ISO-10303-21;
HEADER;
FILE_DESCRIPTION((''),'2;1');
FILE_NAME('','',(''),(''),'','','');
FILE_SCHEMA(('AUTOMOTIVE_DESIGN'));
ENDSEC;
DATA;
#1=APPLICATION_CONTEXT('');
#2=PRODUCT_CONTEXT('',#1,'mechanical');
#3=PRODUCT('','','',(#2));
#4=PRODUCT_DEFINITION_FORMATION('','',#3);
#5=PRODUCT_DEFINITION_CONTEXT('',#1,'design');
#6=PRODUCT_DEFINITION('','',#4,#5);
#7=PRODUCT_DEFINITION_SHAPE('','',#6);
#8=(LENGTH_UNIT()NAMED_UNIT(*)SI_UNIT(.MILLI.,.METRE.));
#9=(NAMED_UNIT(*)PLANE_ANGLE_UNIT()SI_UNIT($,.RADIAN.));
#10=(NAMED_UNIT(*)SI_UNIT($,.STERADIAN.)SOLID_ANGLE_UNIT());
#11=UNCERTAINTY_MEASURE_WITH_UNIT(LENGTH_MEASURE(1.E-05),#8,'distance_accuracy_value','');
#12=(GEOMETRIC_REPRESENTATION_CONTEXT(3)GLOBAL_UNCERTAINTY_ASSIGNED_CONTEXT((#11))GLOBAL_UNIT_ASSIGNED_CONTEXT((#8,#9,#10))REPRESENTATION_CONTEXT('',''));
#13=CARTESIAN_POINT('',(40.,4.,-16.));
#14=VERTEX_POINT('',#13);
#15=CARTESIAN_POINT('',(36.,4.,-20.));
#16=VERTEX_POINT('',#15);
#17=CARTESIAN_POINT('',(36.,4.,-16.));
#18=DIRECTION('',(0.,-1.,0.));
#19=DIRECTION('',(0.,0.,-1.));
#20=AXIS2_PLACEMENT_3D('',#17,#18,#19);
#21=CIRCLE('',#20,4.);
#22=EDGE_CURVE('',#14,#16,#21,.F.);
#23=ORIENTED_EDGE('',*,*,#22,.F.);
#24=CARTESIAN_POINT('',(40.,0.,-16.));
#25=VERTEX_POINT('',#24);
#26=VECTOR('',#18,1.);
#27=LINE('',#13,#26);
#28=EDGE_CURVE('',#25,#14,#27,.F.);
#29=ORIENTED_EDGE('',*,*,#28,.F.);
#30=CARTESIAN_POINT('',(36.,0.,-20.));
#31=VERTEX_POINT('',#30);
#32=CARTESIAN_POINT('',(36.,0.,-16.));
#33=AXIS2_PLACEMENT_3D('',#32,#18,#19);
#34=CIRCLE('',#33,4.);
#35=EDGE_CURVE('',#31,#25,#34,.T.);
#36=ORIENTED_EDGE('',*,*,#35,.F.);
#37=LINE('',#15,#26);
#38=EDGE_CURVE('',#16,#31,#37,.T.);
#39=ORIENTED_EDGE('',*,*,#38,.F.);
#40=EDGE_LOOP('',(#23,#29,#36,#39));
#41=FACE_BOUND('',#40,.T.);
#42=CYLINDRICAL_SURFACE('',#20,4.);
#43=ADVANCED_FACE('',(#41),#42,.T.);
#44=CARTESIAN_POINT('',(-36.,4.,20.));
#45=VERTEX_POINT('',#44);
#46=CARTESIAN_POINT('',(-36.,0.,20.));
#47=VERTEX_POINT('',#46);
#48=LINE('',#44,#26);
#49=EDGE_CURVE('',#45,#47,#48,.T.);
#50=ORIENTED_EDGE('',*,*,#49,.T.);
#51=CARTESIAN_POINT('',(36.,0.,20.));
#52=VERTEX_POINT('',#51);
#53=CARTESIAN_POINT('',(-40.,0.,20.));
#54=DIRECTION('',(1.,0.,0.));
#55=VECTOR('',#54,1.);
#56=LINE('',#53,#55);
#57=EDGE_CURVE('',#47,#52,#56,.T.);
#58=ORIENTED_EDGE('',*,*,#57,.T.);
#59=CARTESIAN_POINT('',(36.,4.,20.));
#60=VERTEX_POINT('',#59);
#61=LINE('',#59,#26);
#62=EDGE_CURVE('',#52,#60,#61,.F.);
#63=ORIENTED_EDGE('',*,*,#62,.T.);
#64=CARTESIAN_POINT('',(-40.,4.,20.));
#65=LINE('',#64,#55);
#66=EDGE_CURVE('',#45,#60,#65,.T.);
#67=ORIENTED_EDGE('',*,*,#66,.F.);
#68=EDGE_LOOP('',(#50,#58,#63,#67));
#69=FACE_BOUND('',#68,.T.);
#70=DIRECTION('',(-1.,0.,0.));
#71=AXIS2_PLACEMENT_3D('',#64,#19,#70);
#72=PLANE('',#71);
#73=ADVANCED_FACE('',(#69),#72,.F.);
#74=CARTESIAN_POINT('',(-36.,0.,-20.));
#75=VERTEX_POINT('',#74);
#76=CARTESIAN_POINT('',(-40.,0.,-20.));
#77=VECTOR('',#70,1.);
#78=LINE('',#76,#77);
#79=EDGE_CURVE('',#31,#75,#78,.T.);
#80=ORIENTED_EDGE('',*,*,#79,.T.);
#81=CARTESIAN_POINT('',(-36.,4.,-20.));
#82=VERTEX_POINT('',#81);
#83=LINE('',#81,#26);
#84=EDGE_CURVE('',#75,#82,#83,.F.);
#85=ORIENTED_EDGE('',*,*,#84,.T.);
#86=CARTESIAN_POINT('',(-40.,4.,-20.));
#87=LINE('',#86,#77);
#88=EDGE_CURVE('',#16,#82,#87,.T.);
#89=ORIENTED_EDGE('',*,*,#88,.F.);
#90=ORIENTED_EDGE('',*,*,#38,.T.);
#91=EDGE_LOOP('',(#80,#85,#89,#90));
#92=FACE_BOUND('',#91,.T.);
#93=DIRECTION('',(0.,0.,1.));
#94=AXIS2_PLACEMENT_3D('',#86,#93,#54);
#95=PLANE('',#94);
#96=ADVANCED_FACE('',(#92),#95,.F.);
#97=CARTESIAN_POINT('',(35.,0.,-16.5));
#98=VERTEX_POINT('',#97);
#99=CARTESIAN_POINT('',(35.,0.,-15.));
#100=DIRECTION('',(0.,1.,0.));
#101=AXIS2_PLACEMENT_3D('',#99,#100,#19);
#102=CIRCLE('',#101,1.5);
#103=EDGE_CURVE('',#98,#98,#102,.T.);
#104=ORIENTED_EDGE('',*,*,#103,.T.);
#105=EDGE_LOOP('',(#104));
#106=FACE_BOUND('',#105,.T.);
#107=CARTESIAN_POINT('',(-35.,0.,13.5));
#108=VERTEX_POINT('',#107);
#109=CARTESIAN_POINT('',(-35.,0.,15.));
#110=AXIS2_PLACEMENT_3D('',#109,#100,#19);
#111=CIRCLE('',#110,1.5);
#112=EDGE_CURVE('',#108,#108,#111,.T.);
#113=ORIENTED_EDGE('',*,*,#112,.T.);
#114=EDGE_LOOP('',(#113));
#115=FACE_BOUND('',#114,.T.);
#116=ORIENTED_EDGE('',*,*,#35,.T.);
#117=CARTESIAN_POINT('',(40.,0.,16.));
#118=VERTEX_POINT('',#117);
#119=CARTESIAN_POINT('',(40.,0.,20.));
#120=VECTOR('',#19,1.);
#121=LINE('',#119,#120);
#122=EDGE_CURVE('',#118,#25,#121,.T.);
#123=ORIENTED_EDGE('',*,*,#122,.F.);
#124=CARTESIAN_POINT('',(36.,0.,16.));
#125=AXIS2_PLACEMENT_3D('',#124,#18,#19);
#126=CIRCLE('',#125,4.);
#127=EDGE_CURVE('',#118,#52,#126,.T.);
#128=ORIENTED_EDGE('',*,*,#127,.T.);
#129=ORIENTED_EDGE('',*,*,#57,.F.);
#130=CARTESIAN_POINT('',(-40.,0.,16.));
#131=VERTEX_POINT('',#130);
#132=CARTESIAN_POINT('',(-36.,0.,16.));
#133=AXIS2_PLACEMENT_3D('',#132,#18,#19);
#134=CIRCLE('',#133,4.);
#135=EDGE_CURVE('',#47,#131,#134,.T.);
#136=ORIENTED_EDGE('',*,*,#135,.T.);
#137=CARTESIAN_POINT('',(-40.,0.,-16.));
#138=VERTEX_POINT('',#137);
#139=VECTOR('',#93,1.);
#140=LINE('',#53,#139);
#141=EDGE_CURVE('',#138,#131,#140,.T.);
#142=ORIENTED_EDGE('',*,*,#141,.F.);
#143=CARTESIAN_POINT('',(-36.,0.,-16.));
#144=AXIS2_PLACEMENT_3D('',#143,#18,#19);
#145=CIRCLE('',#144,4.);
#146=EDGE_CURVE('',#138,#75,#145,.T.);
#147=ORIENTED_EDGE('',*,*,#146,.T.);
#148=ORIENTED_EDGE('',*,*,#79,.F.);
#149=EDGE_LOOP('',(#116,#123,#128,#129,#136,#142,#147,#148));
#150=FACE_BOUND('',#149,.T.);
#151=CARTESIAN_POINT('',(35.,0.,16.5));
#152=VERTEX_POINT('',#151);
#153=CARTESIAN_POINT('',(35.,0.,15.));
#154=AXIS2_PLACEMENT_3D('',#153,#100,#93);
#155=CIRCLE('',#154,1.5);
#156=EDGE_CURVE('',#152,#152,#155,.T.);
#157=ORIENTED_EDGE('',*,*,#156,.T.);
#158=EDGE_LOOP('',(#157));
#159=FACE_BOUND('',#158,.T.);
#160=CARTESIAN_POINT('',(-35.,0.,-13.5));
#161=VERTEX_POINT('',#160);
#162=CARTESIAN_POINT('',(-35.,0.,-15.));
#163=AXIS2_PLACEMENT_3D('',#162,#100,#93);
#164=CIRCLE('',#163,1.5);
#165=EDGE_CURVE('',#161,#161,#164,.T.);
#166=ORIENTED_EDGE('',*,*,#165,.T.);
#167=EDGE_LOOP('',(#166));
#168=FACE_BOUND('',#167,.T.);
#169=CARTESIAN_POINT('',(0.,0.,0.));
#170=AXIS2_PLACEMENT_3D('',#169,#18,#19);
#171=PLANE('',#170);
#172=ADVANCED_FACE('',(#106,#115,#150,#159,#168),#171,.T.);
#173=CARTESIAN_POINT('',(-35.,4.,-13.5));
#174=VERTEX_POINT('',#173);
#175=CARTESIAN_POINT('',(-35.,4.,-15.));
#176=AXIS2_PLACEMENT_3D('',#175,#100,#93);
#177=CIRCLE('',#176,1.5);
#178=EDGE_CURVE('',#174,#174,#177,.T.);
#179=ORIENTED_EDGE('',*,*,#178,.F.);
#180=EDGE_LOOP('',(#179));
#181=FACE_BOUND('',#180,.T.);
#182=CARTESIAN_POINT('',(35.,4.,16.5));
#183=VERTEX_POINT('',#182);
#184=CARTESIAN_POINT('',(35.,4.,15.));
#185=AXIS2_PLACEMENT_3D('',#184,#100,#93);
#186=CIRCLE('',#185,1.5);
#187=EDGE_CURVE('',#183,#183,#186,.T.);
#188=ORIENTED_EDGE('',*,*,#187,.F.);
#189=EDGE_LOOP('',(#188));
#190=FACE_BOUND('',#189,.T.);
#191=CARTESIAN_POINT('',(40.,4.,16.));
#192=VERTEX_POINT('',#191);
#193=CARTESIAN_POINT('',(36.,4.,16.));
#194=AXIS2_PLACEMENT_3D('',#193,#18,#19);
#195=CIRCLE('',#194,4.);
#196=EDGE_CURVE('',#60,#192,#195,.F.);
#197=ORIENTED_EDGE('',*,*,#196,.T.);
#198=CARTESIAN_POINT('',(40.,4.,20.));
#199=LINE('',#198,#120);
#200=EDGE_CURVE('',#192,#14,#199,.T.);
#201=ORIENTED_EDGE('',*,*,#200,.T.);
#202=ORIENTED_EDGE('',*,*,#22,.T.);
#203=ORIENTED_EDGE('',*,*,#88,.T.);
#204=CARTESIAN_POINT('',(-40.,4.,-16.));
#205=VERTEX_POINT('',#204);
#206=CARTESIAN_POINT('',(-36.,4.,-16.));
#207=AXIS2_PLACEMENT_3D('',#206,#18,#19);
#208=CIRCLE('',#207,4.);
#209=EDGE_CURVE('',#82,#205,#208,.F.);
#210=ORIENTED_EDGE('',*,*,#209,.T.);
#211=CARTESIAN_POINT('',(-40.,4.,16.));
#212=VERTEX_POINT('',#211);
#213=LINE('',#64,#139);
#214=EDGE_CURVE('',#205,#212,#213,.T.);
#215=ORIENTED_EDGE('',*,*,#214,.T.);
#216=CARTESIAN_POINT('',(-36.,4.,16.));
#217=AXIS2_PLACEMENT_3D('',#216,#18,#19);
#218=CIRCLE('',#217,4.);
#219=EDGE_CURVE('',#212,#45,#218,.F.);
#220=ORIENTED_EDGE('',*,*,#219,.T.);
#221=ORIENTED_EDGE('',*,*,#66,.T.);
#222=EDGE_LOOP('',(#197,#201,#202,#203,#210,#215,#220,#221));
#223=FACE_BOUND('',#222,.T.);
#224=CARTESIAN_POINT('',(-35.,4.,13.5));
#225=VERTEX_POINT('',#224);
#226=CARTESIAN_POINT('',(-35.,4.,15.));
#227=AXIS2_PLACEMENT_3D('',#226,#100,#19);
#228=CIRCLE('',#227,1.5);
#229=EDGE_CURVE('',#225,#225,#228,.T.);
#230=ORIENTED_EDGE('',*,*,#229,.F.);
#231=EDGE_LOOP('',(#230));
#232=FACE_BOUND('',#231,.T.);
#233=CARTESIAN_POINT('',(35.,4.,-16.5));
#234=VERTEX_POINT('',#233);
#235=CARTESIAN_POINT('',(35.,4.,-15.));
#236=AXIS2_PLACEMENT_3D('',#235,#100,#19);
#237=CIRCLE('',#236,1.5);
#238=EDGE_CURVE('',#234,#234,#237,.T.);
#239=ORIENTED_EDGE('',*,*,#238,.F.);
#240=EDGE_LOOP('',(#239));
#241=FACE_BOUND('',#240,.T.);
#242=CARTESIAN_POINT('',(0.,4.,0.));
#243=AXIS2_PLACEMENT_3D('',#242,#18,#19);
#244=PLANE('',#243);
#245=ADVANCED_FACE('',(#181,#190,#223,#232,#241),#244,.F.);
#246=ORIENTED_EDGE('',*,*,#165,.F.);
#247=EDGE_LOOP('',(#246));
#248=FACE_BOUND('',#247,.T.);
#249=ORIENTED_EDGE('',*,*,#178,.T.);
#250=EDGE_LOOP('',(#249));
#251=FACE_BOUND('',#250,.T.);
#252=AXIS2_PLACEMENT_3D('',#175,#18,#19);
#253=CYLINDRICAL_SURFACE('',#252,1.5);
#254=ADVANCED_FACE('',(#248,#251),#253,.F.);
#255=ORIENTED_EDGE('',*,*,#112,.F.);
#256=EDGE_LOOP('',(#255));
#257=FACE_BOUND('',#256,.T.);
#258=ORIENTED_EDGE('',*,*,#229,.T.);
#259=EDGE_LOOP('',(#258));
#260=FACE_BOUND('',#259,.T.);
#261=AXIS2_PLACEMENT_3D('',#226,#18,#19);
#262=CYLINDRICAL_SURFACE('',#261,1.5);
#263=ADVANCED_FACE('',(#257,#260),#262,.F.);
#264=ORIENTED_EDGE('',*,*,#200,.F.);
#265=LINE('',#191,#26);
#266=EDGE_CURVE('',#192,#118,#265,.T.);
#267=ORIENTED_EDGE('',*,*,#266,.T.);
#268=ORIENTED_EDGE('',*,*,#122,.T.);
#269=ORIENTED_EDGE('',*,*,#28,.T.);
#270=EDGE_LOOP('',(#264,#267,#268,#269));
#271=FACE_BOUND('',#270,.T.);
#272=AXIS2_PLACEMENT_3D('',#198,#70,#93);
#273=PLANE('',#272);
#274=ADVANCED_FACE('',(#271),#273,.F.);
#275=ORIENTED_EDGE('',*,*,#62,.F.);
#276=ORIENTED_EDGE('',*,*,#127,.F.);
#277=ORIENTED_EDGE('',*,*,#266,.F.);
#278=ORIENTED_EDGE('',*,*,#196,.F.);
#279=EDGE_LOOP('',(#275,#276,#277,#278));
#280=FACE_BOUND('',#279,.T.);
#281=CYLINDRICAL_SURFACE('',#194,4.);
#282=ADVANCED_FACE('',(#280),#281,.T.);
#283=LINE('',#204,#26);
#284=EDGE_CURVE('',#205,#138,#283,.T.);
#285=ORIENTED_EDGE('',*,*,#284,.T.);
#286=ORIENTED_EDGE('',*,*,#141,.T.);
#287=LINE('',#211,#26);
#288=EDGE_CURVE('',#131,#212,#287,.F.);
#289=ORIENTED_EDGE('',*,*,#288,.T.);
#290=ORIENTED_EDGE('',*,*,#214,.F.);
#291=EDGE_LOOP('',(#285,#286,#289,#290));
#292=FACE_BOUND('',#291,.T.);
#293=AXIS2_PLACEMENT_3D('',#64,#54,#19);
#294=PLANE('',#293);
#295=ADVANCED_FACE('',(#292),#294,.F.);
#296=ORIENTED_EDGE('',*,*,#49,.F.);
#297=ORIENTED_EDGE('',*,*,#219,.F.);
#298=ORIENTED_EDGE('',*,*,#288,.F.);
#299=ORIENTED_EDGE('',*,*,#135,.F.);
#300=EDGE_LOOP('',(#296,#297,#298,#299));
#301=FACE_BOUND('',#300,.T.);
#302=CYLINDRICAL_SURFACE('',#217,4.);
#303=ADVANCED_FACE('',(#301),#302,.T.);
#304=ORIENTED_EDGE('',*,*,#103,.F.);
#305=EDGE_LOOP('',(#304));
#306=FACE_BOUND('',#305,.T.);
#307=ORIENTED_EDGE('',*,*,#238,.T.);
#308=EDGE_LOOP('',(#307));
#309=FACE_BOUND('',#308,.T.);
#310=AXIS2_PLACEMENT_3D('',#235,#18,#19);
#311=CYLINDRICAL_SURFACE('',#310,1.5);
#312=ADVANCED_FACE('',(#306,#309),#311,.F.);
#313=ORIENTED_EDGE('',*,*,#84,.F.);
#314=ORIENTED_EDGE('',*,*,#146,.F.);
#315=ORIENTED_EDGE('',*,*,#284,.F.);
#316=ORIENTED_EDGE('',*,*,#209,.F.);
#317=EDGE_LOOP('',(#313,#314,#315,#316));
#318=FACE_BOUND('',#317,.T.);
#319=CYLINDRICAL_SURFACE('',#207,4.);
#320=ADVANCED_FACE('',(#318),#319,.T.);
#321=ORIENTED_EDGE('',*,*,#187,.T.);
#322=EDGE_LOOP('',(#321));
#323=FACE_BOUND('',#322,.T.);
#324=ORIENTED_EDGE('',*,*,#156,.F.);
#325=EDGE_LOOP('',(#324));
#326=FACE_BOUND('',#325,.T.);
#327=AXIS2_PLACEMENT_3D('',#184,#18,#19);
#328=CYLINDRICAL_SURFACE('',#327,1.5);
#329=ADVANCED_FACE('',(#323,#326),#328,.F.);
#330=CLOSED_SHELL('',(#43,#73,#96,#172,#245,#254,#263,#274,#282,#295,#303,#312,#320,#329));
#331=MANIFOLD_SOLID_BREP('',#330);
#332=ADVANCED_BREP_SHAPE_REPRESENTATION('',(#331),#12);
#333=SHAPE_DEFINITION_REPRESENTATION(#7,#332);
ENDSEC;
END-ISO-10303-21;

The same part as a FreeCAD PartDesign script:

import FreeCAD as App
import Part
import Sketcher
from FreeCAD import Vector


def edges_at(feature, points):
    """Names of the edges that pass closest to the given points."""
    edges = feature.Shape.Edges
    near = lambda p: min(range(len(edges)), key=lambda i: edges[i].distToShape(Part.Vertex(*p))[0])
    return sorted({f"Edge{near(p) + 1}" for p in points})

doc = App.newDocument("Part")
params = doc.addObject("Spreadsheet::Sheet", "Params")
for row, (alias, value) in enumerate([
    ("sketch1_diameter", "3 mm"),
    ("sketch1_width", "80 mm"),
    ("sketch1_height", "40 mm"),
    ("pad1_length", "4 mm"),
    ("fillet_radius", "4 mm"),
], start=1):
    params.set(f"A{row}", alias)
    params.set(f"B{row}", "=" + value)
    params.setAlias(f"B{row}", alias)

body = doc.addObject("PartDesign::Body", "Body")

# Sketch on XZ plane
sketch1 = body.newObject("Sketcher::SketchObject", "Sketch")
sketch1.AttachmentSupport = (doc.getObject("XZ_Plane"), [""])
sketch1.MapMode = "FlatFace"
sketch1.addGeometry([
    Part.LineSegment(Vector(-40, -20, 0), Vector(-40, 20, 0)),  # 0
    Part.LineSegment(Vector(-40, 20, 0), Vector(40, 20, 0)),  # 1
    Part.LineSegment(Vector(40, 20, 0), Vector(40, -20, 0)),  # 2
    Part.LineSegment(Vector(40, -20, 0), Vector(-40, -20, 0)),  # 3
    Part.Circle(Vector(-35, 15, 0), Vector(0, 0, 1), 1.5),  # 4
    Part.Circle(Vector(35, 15, 0), Vector(0, 0, 1), 1.5),  # 5
    Part.Circle(Vector(-35, -15, 0), Vector(0, 0, 1), 1.5),  # 6
    Part.Circle(Vector(35, -15, 0), Vector(0, 0, 1), 1.5),  # 7
], False)
sketch1.addConstraint([
    Sketcher.Constraint("Coincident", 0, 2, 1, 1),
    Sketcher.Constraint("Coincident", 1, 2, 2, 1),
    Sketcher.Constraint("Coincident", 2, 2, 3, 1),
    Sketcher.Constraint("Coincident", 3, 2, 0, 1),
    Sketcher.Constraint("Vertical", 0),
    Sketcher.Constraint("Horizontal", 1),
    Sketcher.Constraint("Vertical", 2),
    Sketcher.Constraint("Horizontal", 3),
    Sketcher.Constraint("Equal", 4, 5),
    Sketcher.Constraint("Equal", 5, 6),
    Sketcher.Constraint("Equal", 6, 7),
    Sketcher.Constraint("Symmetric", 5, 3, 6, 3, -1, 1),
    Sketcher.Constraint("Symmetric", 4, 3, 7, 3, -1, 1),
    Sketcher.Constraint("Symmetric", 0, 2, 2, 2, -1, 1),
    Sketcher.Constraint("Symmetric", 4, 3, 5, 3, -2),
    Sketcher.Constraint("Diameter", 4, 3.0),
    Sketcher.Constraint("DistanceX", 1, 1, 1, 2, 80.0),
    Sketcher.Constraint("DistanceY", 0, 1, 0, 2, 40.0),
    Sketcher.Constraint("DistanceX", 4, 3, -1, 1, 35.0),
    Sketcher.Constraint("DistanceY", -1, 1, 4, 3, 15.0),
])
sketch1.setExpression("Constraints[15]", "Params.sketch1_diameter")
sketch1.setExpression("Constraints[16]", "Params.sketch1_width")
sketch1.setExpression("Constraints[17]", "Params.sketch1_height")
pad1 = body.newObject("PartDesign::Pad", "Pad")
pad1.Profile = sketch1
pad1.setExpression("Length", "Params.pad1_length")
pad1.Reversed = True
doc.recompute()

fillet = body.newObject("PartDesign::Fillet", "Fillet")
fillet.Base = (pad1, edges_at(pad1, [
    (-40, 2, -20),
    (40, 2, -20),
    (40, 2, 20),
    (-40, 2, 20),
]))
fillet.setExpression("Radius", "Params.fillet_radius")

doc.recompute()
